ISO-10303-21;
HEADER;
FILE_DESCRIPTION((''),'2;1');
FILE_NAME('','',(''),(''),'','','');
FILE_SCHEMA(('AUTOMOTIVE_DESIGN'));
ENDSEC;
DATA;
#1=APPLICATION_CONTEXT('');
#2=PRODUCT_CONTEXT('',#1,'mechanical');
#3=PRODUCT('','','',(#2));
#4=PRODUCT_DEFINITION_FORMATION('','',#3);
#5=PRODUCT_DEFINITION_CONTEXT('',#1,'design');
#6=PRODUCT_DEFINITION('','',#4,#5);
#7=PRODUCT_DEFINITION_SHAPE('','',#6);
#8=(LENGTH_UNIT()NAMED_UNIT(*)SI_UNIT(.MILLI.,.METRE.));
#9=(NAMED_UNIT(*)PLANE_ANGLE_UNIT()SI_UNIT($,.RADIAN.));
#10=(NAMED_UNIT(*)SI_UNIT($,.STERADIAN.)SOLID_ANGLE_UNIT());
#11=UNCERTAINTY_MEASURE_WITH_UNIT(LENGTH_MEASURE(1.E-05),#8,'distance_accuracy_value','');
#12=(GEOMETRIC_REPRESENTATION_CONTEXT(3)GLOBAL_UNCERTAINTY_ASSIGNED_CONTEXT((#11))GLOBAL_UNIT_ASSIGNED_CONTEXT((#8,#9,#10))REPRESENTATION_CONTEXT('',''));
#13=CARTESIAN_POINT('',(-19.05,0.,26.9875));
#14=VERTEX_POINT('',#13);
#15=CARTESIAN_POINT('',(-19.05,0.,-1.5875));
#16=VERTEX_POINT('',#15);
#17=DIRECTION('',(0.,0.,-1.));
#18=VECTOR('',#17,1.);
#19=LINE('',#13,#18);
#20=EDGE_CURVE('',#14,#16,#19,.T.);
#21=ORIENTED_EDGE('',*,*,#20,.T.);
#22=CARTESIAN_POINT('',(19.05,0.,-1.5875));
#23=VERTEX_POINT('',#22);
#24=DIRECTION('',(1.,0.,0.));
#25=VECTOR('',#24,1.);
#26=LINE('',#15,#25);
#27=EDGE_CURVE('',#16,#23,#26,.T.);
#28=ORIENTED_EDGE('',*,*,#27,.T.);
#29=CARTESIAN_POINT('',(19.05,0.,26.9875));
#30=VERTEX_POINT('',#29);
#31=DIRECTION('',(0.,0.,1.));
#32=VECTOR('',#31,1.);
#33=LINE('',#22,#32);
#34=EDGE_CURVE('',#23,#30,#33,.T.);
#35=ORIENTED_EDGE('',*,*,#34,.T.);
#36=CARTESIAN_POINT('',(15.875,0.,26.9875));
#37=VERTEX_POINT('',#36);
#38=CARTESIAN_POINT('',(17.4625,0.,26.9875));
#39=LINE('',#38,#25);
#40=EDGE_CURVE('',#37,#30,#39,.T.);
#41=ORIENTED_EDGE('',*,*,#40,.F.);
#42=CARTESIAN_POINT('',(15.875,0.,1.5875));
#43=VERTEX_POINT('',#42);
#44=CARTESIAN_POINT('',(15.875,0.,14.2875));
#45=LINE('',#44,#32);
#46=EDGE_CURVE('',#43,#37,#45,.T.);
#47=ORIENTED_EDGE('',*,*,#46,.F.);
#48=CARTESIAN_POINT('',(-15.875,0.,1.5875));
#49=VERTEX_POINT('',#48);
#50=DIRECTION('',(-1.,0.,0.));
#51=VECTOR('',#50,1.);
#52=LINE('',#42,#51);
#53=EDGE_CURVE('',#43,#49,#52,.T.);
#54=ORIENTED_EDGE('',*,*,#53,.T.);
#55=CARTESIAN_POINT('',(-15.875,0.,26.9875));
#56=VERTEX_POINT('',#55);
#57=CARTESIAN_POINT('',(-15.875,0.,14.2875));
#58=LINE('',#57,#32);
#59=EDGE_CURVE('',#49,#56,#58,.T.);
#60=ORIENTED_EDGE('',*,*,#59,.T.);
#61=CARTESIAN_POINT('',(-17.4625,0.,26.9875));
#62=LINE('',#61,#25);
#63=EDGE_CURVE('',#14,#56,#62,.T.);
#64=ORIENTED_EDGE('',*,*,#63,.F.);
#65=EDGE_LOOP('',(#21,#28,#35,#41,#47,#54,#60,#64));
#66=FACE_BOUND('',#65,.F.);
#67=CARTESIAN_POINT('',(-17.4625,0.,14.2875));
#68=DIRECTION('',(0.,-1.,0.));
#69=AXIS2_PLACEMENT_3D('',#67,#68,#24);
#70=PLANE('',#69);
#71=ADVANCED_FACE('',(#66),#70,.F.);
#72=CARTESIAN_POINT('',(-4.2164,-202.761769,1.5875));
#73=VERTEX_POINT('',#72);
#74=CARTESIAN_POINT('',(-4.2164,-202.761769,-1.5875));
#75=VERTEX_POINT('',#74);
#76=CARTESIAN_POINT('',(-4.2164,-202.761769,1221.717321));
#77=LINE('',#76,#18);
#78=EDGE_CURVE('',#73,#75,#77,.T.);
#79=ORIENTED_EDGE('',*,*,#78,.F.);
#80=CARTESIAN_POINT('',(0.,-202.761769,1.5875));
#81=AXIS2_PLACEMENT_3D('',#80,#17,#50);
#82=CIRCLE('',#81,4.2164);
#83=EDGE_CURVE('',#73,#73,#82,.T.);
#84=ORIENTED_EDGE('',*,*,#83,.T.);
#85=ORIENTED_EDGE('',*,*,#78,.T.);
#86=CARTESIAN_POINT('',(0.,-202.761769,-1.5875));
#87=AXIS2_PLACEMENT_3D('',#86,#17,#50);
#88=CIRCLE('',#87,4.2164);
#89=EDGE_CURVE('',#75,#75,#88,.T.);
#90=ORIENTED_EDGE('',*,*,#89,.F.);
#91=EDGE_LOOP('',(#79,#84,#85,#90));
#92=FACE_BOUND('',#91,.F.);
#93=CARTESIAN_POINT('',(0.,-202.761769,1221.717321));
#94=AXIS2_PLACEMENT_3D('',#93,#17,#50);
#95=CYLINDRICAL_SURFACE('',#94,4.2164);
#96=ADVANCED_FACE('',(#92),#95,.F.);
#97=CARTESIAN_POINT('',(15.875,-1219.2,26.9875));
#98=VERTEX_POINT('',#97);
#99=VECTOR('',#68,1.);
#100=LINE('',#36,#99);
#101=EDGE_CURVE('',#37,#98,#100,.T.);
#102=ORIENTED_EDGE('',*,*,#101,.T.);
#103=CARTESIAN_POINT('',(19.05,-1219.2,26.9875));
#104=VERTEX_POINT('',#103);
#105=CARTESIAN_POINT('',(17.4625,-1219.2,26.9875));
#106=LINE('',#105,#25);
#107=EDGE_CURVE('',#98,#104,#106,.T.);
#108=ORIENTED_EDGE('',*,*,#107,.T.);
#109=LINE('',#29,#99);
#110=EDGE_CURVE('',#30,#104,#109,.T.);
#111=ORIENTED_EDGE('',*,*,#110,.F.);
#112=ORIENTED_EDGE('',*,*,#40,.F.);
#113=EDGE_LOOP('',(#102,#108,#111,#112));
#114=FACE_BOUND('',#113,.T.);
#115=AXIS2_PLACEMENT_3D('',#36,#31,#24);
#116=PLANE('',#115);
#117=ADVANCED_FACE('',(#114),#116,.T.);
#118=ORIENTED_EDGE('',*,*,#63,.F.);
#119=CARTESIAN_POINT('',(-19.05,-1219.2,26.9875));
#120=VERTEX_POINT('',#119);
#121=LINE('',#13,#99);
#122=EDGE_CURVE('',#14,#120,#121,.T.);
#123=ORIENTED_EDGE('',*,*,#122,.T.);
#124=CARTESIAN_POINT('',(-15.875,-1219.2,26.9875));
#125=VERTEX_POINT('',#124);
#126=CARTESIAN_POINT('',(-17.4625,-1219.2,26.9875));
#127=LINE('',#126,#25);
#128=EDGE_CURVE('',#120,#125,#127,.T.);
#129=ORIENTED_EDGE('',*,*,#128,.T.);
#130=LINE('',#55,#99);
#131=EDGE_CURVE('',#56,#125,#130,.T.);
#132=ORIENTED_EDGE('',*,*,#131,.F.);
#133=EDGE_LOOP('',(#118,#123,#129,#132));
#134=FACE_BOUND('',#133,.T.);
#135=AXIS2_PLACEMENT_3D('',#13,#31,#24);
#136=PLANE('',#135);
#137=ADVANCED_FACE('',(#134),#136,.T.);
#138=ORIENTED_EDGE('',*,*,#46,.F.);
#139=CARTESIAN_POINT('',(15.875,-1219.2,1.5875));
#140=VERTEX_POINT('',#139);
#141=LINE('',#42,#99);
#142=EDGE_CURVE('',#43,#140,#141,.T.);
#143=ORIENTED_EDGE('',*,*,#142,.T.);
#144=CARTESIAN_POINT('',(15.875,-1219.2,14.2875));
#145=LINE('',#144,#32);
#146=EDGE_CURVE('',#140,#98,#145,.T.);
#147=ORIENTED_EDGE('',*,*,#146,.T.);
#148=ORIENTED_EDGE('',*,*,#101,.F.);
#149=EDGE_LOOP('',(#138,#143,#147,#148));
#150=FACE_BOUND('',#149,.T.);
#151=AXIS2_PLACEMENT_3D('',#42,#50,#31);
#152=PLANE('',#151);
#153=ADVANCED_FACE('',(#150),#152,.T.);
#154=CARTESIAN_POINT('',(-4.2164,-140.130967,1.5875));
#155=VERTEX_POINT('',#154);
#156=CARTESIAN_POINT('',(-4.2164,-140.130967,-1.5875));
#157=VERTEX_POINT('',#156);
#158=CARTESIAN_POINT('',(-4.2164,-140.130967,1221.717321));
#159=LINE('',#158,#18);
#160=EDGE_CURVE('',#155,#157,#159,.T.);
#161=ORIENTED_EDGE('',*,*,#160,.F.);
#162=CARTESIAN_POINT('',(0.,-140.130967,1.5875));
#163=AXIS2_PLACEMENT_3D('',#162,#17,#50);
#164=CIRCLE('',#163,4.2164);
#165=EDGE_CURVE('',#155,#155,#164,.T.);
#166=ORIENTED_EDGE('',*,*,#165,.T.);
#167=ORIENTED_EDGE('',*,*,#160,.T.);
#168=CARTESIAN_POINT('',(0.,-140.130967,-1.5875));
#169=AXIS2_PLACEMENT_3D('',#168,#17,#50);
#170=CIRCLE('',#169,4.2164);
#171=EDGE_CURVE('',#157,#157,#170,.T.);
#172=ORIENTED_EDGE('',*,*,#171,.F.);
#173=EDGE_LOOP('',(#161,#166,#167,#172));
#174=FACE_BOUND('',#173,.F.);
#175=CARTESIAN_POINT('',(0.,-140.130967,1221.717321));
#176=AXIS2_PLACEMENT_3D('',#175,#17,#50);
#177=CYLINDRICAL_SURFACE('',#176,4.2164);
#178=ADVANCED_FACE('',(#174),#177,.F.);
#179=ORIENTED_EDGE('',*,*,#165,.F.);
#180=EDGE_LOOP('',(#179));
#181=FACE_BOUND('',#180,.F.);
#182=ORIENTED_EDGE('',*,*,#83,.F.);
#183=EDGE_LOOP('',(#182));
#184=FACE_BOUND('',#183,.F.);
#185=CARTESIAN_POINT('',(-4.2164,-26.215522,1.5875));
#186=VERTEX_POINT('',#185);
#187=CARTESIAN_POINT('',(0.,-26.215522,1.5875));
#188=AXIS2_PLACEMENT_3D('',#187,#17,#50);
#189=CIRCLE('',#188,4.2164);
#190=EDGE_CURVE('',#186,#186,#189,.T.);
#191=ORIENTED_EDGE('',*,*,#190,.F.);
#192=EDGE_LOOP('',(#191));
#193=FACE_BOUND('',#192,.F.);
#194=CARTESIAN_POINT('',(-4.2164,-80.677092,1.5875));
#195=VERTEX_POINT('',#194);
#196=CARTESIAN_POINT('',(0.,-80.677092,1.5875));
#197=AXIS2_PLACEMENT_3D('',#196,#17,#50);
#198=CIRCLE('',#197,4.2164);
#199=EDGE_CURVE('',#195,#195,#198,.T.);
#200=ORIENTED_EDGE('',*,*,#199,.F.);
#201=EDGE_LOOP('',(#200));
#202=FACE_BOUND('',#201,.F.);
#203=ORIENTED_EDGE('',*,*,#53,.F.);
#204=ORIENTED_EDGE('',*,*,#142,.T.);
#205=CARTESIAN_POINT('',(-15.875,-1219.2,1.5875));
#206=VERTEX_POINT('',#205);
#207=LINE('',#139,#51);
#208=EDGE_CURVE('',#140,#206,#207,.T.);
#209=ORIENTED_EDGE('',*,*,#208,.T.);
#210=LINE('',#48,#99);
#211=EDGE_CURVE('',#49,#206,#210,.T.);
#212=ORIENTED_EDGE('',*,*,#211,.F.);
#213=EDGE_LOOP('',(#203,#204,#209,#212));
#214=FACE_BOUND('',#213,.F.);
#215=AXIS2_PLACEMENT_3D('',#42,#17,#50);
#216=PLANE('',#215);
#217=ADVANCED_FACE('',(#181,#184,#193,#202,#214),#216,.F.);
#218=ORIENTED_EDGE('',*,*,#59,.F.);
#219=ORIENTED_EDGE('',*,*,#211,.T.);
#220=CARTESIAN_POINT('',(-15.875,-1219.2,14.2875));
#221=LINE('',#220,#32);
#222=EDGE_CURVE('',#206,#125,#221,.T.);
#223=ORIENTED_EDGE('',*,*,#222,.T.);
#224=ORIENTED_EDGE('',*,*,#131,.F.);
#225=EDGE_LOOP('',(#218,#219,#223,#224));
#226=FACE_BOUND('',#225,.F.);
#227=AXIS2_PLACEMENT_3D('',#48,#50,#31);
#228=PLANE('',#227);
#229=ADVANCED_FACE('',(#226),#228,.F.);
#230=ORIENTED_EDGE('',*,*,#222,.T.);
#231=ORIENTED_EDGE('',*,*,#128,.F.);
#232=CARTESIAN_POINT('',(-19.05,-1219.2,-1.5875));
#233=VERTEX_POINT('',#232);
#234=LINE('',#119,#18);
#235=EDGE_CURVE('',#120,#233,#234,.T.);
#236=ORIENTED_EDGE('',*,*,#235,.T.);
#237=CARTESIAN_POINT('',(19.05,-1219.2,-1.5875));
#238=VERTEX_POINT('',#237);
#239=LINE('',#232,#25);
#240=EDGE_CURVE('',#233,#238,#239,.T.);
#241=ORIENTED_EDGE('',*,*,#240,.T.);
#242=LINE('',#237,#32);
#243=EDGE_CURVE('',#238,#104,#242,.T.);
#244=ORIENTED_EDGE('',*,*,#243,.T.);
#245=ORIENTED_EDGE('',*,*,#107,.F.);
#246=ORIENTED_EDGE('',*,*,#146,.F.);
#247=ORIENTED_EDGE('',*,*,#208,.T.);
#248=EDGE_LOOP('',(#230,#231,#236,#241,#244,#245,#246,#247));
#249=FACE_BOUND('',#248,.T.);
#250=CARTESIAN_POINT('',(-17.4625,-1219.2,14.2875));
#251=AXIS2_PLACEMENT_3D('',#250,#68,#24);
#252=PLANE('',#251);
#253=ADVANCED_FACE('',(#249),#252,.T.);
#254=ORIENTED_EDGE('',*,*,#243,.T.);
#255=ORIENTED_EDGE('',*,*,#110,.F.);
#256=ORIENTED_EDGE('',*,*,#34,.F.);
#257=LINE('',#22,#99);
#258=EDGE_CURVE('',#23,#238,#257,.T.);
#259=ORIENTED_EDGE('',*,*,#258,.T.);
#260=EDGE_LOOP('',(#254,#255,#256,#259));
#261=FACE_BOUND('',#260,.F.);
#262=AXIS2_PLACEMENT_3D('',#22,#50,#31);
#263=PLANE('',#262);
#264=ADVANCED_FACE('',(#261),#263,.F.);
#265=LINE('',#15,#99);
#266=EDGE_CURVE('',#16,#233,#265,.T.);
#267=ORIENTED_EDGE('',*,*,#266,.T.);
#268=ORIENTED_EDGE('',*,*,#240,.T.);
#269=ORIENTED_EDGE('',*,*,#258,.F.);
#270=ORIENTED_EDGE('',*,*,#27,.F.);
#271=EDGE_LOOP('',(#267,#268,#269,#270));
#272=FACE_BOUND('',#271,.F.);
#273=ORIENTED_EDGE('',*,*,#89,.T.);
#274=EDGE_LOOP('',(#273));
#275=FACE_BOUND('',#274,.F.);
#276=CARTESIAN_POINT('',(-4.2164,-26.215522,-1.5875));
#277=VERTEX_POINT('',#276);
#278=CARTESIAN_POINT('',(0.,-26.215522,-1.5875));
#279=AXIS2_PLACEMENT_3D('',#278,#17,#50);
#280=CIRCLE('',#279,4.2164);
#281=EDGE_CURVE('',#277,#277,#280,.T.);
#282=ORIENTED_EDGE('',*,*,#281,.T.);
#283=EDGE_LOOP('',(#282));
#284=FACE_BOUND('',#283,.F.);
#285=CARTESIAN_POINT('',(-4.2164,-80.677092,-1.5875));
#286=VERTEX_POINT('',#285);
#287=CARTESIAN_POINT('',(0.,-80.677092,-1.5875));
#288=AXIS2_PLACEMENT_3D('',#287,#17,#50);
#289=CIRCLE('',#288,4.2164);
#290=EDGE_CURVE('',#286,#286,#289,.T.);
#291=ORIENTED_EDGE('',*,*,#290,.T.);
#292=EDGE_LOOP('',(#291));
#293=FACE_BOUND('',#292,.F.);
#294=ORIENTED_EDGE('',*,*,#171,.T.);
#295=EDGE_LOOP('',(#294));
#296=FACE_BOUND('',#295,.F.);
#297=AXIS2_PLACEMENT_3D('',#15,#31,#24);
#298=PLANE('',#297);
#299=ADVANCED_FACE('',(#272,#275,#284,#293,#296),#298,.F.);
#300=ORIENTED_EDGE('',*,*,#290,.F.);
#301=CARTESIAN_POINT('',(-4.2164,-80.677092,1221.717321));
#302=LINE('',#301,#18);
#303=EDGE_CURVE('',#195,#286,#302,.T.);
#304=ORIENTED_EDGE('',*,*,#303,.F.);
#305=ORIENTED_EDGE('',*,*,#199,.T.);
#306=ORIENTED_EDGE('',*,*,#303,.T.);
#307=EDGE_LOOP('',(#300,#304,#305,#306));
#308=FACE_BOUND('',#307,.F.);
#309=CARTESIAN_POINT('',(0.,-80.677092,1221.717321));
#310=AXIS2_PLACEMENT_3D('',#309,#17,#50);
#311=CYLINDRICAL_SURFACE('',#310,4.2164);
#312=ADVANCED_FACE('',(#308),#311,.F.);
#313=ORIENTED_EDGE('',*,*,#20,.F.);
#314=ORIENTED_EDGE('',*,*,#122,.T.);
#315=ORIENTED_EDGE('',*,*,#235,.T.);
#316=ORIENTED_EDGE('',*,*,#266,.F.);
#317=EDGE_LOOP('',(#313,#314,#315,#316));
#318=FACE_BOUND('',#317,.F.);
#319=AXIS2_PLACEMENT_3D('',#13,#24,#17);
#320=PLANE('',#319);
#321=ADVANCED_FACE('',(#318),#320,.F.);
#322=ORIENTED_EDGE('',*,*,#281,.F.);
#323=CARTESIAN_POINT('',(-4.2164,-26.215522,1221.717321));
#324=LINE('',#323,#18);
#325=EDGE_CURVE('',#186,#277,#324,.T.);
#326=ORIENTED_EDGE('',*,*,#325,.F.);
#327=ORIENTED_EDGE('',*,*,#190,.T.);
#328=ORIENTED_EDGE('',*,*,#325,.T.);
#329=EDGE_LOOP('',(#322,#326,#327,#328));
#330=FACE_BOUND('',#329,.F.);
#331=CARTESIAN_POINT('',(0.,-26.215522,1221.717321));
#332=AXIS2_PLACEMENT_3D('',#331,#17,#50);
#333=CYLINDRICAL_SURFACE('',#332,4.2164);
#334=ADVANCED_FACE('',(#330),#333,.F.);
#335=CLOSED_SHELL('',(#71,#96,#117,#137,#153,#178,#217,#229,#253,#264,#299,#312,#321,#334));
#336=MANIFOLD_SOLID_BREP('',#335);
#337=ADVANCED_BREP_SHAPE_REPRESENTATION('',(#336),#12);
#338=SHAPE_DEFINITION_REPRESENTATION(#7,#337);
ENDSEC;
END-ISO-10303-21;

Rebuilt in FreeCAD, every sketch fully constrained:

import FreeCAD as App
import Part
import Sketcher
Q = App.Units.Quantity

doc = App.newDocument("Part")
body = doc.addObject("PartDesign::Body", "Body")

# Sketch on XZ plane
sketch1 = body.newObject("Sketcher::SketchObject", "Sketch")
sketch1.AttachmentSupport = (doc.getObject("XZ_Plane"), [""])
sketch1.MapMode = "FlatFace"
sketch1.addGeometry([
    Part.LineSegment(App.Vector(-19.1, 27, 0), App.Vector(-19.1, -1.6, 0)),  # 0
    Part.LineSegment(App.Vector(-19.1, -1.6, 0), App.Vector(19.1, -1.6, 0)),  # 1
    Part.LineSegment(App.Vector(19.1, -1.6, 0), App.Vector(19.1, 27, 0)),  # 2
    Part.LineSegment(App.Vector(19.1, 27, 0), App.Vector(15.9, 27, 0)),  # 3
    Part.LineSegment(App.Vector(15.9, 27, 0), App.Vector(15.9, 1.6, 0)),  # 4
    Part.LineSegment(App.Vector(15.9, 1.6, 0), App.Vector(-15.9, 1.6, 0)),  # 5
    Part.LineSegment(App.Vector(-15.9, 1.6, 0), App.Vector(-15.9, 27, 0)),  # 6
    Part.LineSegment(App.Vector(-15.9, 27, 0), App.Vector(-19.1, 27, 0)),  # 7
], False)
sketch1.addConstraint([
    Sketcher.Constraint("Coincident", 0, 2, 1, 1),
    Sketcher.Constraint("Coincident", 1, 2, 2, 1),
    Sketcher.Constraint("Coincident", 2, 2, 3, 1),
    Sketcher.Constraint("Coincident", 3, 2, 4, 1),
    Sketcher.Constraint("Coincident", 4, 2, 5, 1),
    Sketcher.Constraint("Coincident", 5, 2, 6, 1),
    Sketcher.Constraint("Coincident", 6, 2, 7, 1),
    Sketcher.Constraint("Coincident", 7, 2, 0, 1),
    Sketcher.Constraint("Vertical", 0),
    Sketcher.Constraint("Horizontal", 1),
    Sketcher.Constraint("Vertical", 2),
    Sketcher.Constraint("Horizontal", 3),
    Sketcher.Constraint("Vertical", 4),
    Sketcher.Constraint("Horizontal", 5),
    Sketcher.Constraint("Vertical", 6),
    Sketcher.Constraint("Horizontal", 7),
    Sketcher.Constraint("Symmetric", 3, 2, 6, 2, -2),
    Sketcher.Constraint("Equal", 3, 7),
    Sketcher.Constraint("DistanceY", 4, 2, 4, 1, Q("1 in")),
    Sketcher.Constraint("DistanceX", 1, 1, 1, 2, Q("1.5 in")),
    Sketcher.Constraint("DistanceX", 5, 2, 5, 1, Q("1.25 in")),
    Sketcher.Constraint("DistanceY", 0, 2, 0, 1, Q("1.125 in")),
    Sketcher.Constraint("DistanceY", 0, 2, -1, 1, Q("0.0625 in")),
])
pad1 = body.newObject("PartDesign::Pad", "Pad")
pad1.Profile = sketch1
pad1.Length = Q("48 in")

# Sketch on XY plane
sketch2 = body.newObject("Sketcher::SketchObject", "Sketch001")
sketch2.AttachmentSupport = (doc.getObject("XY_Plane"), [""])
sketch2.MapMode = "FlatFace"
sketch2.AttachmentOffset = App.Placement(App.Vector(0, 0, 0.0625 * 25.4), App.Rotation())
sketch2.addGeometry([
    Part.Circle(App.Vector(0, -26.2, 0), App.Vector(0, 0, 1), 4.2),
    Part.Circle(App.Vector(0, -80.7, 0), App.Vector(0, 0, 1), 4.2),
    Part.Circle(App.Vector(0, -140.1, 0), App.Vector(0, 0, 1), 4.2),
    Part.Circle(App.Vector(0, -202.8, 0), App.Vector(0, 0, 1), 4.2),
], False)
sketch2.addConstraint([
    Sketcher.Constraint("Equal", 0, 1),
    Sketcher.Constraint("Equal", 1, 2),
    Sketcher.Constraint("Equal", 2, 3),
    Sketcher.Constraint("PointOnObject", 0, 3, -2),
    Sketcher.Constraint("PointOnObject", 1, 3, -2),
    Sketcher.Constraint("PointOnObject", 2, 3, -2),
    Sketcher.Constraint("PointOnObject", 3, 3, -2),
    Sketcher.Constraint("Diameter", 0, Q("0.332 in")),
    Sketcher.Constraint("DistanceY", 0, 3, -1, 1, Q("26.215522 mm")),
    Sketcher.Constraint("DistanceY", 3, 3, -1, 1, Q("202.761769 mm")),
    Sketcher.Constraint("DistanceY", 1, 3, 0, 3, Q("54.46157 mm")),
    Sketcher.Constraint("DistanceY", 2, 3, -1, 1, Q("140.130967 mm")),
])
doc.recompute()
hole = body.newObject("PartDesign::Hole", "Hole")
hole.Profile = sketch2
hole.ThreadType = "None"
hole.Diameter = Q("0.332 in")
hole.DepthType = "ThroughAll"

doc.recompute()
